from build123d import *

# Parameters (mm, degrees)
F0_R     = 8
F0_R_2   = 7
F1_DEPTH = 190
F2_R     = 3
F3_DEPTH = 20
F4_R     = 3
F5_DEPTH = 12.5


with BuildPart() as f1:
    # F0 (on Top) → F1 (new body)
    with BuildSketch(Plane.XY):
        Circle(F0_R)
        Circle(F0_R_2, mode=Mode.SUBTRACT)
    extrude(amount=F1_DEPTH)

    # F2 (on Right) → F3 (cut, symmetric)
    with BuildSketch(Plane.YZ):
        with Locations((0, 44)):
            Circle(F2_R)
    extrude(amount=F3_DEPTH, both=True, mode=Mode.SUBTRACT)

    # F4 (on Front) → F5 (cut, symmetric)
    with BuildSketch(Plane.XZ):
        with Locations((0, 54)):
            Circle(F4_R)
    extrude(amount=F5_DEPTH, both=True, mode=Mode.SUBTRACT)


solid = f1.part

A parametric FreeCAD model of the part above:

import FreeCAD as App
import Part
import Sketcher

V = App.Vector

doc = App.newDocument("Part")
body = doc.addObject("PartDesign::Body", "Body")

# Sketch on XY plane
sketch1 = body.newObject("Sketcher::SketchObject", "Sketch")
sketch1.AttachmentSupport = (doc.getObject("XY_Plane"), [""])
sketch1.MapMode = "FlatFace"
sketch1.addGeometry(Part.Circle(V(0, 0, 0), V(0, 0, 1), 8), False)
sketch1.addGeometry(Part.Circle(V(0, 0, 0), V(0, 0, 1), 7), False)
sketch1.addConstraint(Sketcher.Constraint("Coincident", 0, 3, -1, 1))
sketch1.addConstraint(Sketcher.Constraint("Coincident", 1, 3, -1, 1))
sketch1.addConstraint(Sketcher.Constraint("Diameter", 0, 16.0))
sketch1.addConstraint(Sketcher.Constraint("Diameter", 1, 14.0))
pad1 = body.newObject("PartDesign::Pad", "Pad")
pad1.Profile = sketch1
pad1.Length = 190

# Sketch on YZ plane
sketch2 = body.newObject("Sketcher::SketchObject", "Sketch001")
sketch2.AttachmentSupport = (doc.getObject("YZ_Plane"), [""])
sketch2.MapMode = "FlatFace"
sketch2.addGeometry(Part.Circle(V(0, 44, 0), V(0, 0, 1), 3), False)
sketch2.addConstraint(Sketcher.Constraint("PointOnObject", 0, 3, -2))
sketch2.addConstraint(Sketcher.Constraint("Diameter", 0, 6.0))
sketch2.addConstraint(Sketcher.Constraint("DistanceY", -1, 1, 0, 3, 44.0))
pocket1 = body.newObject("PartDesign::Pocket", "Pocket")
pocket1.Profile = sketch2
pocket1.Length = 40
pocket1.Midplane = True

# Sketch on XZ plane
sketch3 = body.newObject("Sketcher::SketchObject", "Sketch002")
sketch3.AttachmentSupport = (doc.getObject("XZ_Plane"), [""])
sketch3.MapMode = "FlatFace"
sketch3.addGeometry(Part.Circle(V(0, 54, 0), V(0, 0, 1), 3), False)
sketch3.addConstraint(Sketcher.Constraint("PointOnObject", 0, 3, -2))
sketch3.addConstraint(Sketcher.Constraint("Diameter", 0, 6.0))
sketch3.addConstraint(Sketcher.Constraint("DistanceY", -1, 1, 0, 3, 54.0))
pocket2 = body.newObject("PartDesign::Pocket", "Pocket001")
pocket2.Profile = sketch3
pocket2.Length = 25
pocket2.Midplane = True

doc.recompute()
